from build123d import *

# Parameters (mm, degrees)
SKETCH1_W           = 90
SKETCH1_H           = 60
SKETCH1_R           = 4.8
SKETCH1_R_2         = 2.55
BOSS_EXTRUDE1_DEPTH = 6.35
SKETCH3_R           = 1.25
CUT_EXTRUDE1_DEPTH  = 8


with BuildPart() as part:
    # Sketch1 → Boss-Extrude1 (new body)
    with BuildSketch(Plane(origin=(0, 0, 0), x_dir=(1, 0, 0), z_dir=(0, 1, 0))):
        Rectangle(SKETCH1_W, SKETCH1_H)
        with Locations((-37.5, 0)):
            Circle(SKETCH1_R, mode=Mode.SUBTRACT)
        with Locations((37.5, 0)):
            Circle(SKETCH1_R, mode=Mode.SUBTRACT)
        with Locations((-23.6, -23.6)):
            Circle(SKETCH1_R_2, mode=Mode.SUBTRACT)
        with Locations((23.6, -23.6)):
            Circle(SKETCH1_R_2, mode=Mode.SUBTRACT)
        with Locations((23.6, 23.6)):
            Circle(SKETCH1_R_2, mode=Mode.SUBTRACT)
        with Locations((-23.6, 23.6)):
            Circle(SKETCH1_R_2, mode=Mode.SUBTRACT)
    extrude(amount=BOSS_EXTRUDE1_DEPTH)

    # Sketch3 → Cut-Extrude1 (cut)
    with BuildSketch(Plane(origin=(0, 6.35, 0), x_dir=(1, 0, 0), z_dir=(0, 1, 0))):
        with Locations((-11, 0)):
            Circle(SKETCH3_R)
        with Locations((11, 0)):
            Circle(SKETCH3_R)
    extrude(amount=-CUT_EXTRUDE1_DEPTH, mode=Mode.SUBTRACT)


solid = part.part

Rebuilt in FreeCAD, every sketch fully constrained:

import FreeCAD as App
import Part
import Sketcher
from FreeCAD import Vector
Q = App.Units.Quantity

doc = App.newDocument("Part")
body = doc.addObject("PartDesign::Body", "Body")

sketch1 = doc.addObject("Sketcher::SketchObject", "Sketch")
body.addObject(sketch1)
sketch1.AttachmentSupport = (doc.XZ_Plane, [""])
sketch1.MapMode = "FlatFace"
sketch1.addGeometry(Part.LineSegment(Vector(-45, -30, 0), Vector(-45, 30, 0)), False)
sketch1.addGeometry(Part.LineSegment(Vector(-45, 30, 0), Vector(45, 30, 0)), False)
sketch1.addGeometry(Part.LineSegment(Vector(45, 30, 0), Vector(45, -30, 0)), False)
sketch1.addGeometry(Part.LineSegment(Vector(45, -30, 0), Vector(-45, -30, 0)), False)
sketch1.addGeometry(Part.Circle(Vector(-23.6, 23.6, 0), Vector(0, 0, 1), 2.5), False)
sketch1.addGeometry(Part.Circle(Vector(-37.5, 0, 0), Vector(0, 0, 1), 4.8), False)
sketch1.addGeometry(Part.Circle(Vector(23.6, 23.6, 0), Vector(0, 0, 1), 2.5), False)
sketch1.addGeometry(Part.Circle(Vector(37.5, 0, 0), Vector(0, 0, 1), 4.8), False)
sketch1.addGeometry(Part.Circle(Vector(-23.6, -23.6, 0), Vector(0, 0, 1), 2.5), False)
sketch1.addGeometry(Part.Circle(Vector(23.6, -23.6, 0), Vector(0, 0, 1), 2.5), False)
sketch1.addConstraint(Sketcher.Constraint("Coincident", 0, 2, 1, 1))
sketch1.addConstraint(Sketcher.Constraint("Coincident", 1, 2, 2, 1))
sketch1.addConstraint(Sketcher.Constraint("Coincident", 2, 2, 3, 1))
sketch1.addConstraint(Sketcher.Constraint("Coincident", 3, 2, 0, 1))
sketch1.addConstraint(Sketcher.Constraint("Vertical", 0))
sketch1.addConstraint(Sketcher.Constraint("Horizontal", 1))
sketch1.addConstraint(Sketcher.Constraint("Vertical", 2))
sketch1.addConstraint(Sketcher.Constraint("Horizontal", 3))
sketch1.addConstraint(Sketcher.Constraint("Equal", 4, 6))
sketch1.addConstraint(Sketcher.Constraint("Equal", 5, 7))
sketch1.addConstraint(Sketcher.Constraint("Equal", 6, 8))
sketch1.addConstraint(Sketcher.Constraint("Equal", 8, 9))
sketch1.addConstraint(Sketcher.Constraint("Symmetric", 5, 3, 7, 3, -1, 1))
sketch1.addConstraint(Sketcher.Constraint("Symmetric", 6, 3, 8, 3, -1, 1))
sketch1.addConstraint(Sketcher.Constraint("Symmetric", 4, 3, 9, 3, -1, 1))
sketch1.addConstraint(Sketcher.Constraint("Symmetric", 0, 2, 2, 2, -1, 1))
sketch1.addConstraint(Sketcher.Constraint("Symmetric", 4, 3, 6, 3, -2))
sketch1.addConstraint(Sketcher.Constraint("PointOnObject", 5, 3, -1))
sketch1.addConstraint(Sketcher.Constraint("Diameter", 4, Q("5.1 mm")))
sketch1.addConstraint(Sketcher.Constraint("Diameter", 5, Q("9.6 mm")))
sketch1.addConstraint(Sketcher.Constraint("DistanceX", 1, 1, 1, 2, Q("90 mm")))
sketch1.addConstraint(Sketcher.Constraint("DistanceY", 0, 1, 0, 2, Q("60 mm")))
sketch1.addConstraint(Sketcher.Constraint("DistanceX", 5, 3, 7, 3, Q("75 mm")))
sketch1.addConstraint(Sketcher.Constraint("DistanceX", 4, 3, -1, 1, Q("23.6 mm")))
sketch1.addConstraint(Sketcher.Constraint("DistanceY", -1, 1, 4, 3, Q("23.6 mm")))
pad1 = doc.addObject("PartDesign::Pad", "Pad")
body.addObject(pad1)
pad1.Profile = sketch1
pad1.Length = 6.35
pad1.Reversed = True

sketch2 = doc.addObject("Sketcher::SketchObject", "Sketch001")
body.addObject(sketch2)
sketch2.AttachmentSupport = (doc.XZ_Plane, [""])
sketch2.MapMode = "FlatFace"
sketch2.AttachmentOffset = App.Placement(Vector(0, 0, -6.35), App.Rotation())
sketch2.addGeometry(Part.Circle(Vector(-11, 0, 0), Vector(0, 0, 1), 1.2), False)
sketch2.addGeometry(Part.Circle(Vector(11, 0, 0), Vector(0, 0, 1), 1.2), False)
sketch2.addConstraint(Sketcher.Constraint("Equal", 0, 1))
sketch2.addConstraint(Sketcher.Constraint("Symmetric", 0, 3, 1, 3, -1, 1))
sketch2.addConstraint(Sketcher.Constraint("PointOnObject", 0, 3, -1))
sketch2.addConstraint(Sketcher.Constraint("Diameter", 0, Q("2.5 mm")))
sketch2.addConstraint(Sketcher.Constraint("DistanceX", 0, 3, -1, 1, Q("11 mm")))
pocket1 = doc.addObject("PartDesign::Pocket", "Pocket")
body.addObject(pocket1)
pocket1.Profile = sketch2
pocket1.Length = 8
pocket1.Reversed = True

doc.recompute()
